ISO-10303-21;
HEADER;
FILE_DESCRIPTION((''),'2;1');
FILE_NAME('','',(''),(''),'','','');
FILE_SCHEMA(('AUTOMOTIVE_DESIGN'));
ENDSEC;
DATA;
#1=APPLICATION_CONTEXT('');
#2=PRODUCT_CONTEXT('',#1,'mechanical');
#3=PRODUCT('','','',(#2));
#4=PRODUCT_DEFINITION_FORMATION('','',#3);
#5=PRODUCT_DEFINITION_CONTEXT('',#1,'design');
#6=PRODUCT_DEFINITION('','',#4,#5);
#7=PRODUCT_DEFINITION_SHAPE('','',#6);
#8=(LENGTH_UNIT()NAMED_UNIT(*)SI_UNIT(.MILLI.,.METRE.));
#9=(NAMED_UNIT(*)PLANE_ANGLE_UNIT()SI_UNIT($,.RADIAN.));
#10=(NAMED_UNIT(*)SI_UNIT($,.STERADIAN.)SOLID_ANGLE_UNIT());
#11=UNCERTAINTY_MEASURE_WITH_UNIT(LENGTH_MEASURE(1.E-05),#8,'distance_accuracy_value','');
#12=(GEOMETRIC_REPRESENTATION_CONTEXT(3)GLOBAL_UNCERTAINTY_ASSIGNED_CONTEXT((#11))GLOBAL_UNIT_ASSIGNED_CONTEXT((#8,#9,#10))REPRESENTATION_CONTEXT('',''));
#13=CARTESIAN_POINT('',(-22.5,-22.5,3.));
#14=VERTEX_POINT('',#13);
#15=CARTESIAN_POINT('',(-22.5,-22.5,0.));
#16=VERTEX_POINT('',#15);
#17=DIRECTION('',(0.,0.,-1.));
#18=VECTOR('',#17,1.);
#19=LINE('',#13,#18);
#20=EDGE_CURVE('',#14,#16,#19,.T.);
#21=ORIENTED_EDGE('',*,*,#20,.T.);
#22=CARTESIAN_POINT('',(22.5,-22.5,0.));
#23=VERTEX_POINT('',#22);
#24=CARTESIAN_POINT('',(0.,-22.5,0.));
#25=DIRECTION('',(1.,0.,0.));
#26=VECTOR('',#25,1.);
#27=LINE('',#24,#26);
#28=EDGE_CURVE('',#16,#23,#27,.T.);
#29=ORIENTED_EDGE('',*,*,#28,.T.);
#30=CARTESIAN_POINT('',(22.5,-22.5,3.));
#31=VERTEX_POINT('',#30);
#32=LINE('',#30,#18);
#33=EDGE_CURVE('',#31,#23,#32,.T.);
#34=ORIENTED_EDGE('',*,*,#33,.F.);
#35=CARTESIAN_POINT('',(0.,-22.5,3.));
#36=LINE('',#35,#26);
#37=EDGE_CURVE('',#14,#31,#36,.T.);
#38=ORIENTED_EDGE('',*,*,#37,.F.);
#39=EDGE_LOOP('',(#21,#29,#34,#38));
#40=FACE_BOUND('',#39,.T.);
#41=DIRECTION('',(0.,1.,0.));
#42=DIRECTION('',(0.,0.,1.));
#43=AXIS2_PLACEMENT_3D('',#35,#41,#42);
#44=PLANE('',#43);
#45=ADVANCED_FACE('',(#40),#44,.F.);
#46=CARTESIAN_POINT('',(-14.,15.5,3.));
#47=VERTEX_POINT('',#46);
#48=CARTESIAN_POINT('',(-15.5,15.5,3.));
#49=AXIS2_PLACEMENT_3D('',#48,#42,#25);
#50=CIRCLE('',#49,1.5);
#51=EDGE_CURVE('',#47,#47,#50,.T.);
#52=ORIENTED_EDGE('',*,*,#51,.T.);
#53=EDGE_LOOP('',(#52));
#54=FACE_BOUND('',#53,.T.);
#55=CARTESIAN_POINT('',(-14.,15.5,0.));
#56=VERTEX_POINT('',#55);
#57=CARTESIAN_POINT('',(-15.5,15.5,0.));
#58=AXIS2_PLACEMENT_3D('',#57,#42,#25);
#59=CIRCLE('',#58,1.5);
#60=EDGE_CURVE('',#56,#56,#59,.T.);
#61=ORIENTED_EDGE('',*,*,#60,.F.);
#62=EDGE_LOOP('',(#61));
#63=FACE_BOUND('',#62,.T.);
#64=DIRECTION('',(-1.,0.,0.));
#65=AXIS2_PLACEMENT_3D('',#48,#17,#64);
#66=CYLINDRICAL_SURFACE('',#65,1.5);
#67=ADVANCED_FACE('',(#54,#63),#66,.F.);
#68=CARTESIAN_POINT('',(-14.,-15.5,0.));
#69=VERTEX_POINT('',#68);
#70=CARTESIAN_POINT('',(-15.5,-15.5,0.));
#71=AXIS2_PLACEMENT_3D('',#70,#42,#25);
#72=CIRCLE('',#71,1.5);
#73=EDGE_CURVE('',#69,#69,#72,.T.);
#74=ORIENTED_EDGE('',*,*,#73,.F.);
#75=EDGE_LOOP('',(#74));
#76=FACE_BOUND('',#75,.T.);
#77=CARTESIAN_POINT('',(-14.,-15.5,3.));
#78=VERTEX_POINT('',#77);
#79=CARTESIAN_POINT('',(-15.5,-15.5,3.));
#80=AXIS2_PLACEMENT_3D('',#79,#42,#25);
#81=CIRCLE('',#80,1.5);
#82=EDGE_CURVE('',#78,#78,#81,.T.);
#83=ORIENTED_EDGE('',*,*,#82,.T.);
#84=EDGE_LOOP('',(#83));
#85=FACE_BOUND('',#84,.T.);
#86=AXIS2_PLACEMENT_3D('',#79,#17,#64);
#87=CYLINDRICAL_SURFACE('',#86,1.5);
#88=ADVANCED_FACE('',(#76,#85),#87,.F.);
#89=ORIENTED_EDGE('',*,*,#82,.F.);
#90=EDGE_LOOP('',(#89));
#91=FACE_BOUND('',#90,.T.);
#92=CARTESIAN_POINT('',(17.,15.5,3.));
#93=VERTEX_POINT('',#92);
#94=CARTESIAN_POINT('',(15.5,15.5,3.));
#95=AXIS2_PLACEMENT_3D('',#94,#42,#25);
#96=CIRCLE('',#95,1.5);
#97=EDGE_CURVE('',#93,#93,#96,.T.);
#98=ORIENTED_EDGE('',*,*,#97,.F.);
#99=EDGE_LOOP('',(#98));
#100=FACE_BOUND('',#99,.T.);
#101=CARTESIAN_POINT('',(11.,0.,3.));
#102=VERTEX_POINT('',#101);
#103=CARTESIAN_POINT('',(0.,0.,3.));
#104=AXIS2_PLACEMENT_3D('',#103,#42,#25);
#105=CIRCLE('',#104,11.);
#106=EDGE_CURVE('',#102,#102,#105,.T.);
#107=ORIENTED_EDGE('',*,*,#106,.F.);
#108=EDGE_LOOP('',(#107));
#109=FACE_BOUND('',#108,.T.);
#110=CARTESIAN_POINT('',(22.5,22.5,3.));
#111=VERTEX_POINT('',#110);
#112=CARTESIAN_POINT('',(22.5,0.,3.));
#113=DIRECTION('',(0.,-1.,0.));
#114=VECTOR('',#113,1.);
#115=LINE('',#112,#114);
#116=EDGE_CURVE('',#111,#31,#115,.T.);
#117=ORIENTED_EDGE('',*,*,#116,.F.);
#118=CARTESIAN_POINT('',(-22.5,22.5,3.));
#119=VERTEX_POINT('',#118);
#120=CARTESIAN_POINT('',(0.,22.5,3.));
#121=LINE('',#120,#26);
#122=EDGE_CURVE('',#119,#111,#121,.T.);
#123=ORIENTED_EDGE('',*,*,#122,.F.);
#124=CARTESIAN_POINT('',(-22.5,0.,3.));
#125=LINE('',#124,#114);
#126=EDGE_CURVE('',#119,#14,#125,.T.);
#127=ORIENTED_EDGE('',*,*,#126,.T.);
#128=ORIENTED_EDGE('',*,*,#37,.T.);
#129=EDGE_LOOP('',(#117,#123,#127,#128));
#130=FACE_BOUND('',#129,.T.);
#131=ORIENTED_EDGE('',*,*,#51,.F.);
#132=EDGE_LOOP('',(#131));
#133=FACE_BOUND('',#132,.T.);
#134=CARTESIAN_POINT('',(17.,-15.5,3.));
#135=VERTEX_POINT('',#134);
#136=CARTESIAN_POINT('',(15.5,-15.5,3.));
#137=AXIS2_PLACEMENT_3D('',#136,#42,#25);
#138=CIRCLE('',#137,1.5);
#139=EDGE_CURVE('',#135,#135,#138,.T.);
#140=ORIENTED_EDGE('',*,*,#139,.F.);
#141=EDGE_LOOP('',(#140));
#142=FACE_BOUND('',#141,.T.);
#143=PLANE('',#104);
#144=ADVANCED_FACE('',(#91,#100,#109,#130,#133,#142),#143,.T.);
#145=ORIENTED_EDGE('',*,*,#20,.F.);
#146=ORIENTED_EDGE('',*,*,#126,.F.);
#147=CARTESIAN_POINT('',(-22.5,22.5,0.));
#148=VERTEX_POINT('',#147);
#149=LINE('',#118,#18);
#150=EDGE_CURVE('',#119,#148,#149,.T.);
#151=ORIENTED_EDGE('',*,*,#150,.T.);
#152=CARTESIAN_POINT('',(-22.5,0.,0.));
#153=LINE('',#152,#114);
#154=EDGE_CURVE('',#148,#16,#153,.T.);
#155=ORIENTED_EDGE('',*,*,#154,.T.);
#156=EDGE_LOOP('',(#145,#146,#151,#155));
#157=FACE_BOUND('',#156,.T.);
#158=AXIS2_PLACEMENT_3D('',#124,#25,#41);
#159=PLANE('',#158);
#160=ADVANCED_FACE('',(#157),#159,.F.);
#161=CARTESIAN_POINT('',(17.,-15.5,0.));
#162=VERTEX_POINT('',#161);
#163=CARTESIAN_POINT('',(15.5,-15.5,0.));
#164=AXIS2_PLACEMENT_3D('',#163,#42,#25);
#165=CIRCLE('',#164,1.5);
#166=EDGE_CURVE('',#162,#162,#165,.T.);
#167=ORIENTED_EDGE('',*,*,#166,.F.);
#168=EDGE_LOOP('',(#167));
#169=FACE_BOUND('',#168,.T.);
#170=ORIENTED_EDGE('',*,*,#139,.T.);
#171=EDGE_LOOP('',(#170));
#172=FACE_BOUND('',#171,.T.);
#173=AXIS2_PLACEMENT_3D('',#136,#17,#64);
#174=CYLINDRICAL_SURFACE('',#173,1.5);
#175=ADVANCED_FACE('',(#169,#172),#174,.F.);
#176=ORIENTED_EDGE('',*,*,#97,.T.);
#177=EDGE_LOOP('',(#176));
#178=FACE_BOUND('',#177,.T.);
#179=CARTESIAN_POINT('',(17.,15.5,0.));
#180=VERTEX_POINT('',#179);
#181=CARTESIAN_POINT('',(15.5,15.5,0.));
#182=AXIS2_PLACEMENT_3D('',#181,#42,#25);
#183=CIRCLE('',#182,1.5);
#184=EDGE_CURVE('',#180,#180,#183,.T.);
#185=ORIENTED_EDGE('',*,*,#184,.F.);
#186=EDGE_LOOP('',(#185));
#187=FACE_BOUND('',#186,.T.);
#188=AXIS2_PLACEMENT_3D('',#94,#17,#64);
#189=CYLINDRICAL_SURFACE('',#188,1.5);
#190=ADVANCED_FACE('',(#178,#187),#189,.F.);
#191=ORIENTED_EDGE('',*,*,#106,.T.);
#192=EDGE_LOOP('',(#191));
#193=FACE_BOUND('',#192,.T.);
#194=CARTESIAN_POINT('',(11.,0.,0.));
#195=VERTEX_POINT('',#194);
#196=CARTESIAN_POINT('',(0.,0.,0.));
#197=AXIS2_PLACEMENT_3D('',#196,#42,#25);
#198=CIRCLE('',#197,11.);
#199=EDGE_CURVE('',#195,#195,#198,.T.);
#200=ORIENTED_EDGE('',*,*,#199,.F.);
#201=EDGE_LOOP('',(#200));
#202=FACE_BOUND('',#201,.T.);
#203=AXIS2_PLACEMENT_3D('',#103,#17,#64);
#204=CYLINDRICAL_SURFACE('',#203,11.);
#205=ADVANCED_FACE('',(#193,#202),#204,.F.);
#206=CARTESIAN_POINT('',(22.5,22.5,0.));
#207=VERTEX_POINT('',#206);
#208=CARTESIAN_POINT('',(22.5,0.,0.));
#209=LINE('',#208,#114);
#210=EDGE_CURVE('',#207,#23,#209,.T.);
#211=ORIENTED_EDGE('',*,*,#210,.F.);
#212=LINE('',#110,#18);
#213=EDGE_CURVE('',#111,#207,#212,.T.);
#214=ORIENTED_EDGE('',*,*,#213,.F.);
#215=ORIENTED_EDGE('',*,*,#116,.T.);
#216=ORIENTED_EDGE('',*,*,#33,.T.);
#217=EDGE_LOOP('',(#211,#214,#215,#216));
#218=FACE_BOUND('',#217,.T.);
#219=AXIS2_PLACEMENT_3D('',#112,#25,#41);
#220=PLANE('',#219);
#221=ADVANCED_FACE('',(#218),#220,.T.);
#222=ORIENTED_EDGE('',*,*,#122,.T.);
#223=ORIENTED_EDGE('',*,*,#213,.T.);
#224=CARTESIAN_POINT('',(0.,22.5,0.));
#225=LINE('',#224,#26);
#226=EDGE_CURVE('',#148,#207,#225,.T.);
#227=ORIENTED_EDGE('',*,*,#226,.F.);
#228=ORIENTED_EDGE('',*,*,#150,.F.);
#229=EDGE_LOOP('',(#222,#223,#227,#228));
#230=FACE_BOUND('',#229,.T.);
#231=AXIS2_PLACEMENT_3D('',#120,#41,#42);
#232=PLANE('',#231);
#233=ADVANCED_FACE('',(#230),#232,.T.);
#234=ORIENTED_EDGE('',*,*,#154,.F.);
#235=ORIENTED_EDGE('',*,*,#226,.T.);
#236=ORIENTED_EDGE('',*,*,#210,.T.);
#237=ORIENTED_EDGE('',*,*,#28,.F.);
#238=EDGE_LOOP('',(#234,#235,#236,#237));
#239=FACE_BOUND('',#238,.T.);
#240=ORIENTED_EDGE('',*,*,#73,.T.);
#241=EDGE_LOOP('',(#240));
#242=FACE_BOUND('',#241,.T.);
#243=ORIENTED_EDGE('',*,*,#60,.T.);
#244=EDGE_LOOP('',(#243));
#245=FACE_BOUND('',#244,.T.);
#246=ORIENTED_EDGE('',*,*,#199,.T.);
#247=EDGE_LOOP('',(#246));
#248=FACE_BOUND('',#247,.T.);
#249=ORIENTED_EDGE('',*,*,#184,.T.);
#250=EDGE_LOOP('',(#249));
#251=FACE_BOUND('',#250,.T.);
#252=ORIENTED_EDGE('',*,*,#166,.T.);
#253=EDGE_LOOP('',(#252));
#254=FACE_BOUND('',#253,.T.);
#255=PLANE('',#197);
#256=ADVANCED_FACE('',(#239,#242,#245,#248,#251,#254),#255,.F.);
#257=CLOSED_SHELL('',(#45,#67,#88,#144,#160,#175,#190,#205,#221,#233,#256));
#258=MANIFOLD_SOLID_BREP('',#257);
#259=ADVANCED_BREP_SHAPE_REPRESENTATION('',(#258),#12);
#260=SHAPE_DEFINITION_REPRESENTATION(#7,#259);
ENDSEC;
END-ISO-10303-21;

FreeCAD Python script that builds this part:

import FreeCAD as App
import Part
import Sketcher
Q = App.Units.Quantity


def add_polygon(sketch, points):
    """Adds a closed chain of lines whose ends are joined by coincident constraints."""
    first, n = sketch.GeometryCount, len(points)
    for a, b in zip(points, points[1:] + points[:1]):
        sketch.addGeometry(Part.LineSegment(App.Vector(*a, 0), App.Vector(*b, 0)), False)
    for i in range(n):
        sketch.addConstraint(Sketcher.Constraint("Coincident", first + i, 2, first + (i + 1) % n, 1))

doc = App.newDocument("Part")
params = doc.addObject("Spreadsheet::Sheet", "Params")
for row, (alias, value) in enumerate([
    ("sketch1_diameter", "3 mm"),
    ("sketch1_diameter2", "22 mm"),
    ("sketch1_width", "45 mm"),
    ("pad1_length", "3 mm"),
], start=1):
    params.set(f"A{row}", alias)
    params.set(f"B{row}", "=" + value)
    params.setAlias(f"B{row}", alias)

body = doc.addObject("PartDesign::Body", "Body")

# Sketch on XY plane
sketch1 = body.newObject("Sketcher::SketchObject", "Sketch")
sketch1.AttachmentSupport = (doc.getObject("XY_Plane"), [""])
sketch1.MapMode = "FlatFace"
add_polygon(sketch1, [(-22.5, 22.5), (-22.5, -22.5), (22.5, -22.5), (22.5, 22.5)])  # lines 0-3
sketch1.addGeometry(Part.Circle(App.Vector(-15.5, -15.5, 0), App.Vector(0, 0, 1), 1.5), False)  # 4
sketch1.addGeometry(Part.Circle(App.Vector(15.5, -15.5, 0), App.Vector(0, 0, 1), 1.5), False)  # 5
sketch1.addGeometry(Part.Circle(App.Vector(-15.5, 15.5, 0), App.Vector(0, 0, 1), 1.5), False)  # 6
sketch1.addGeometry(Part.Circle(App.Vector(0, 0, 0), App.Vector(0, 0, 1), 11), False)  # 7
sketch1.addGeometry(Part.Circle(App.Vector(15.5, 15.5, 0), App.Vector(0, 0, 1), 1.5), False)  # 8
sketch1.addConstraint(Sketcher.Constraint("Vertical", 0))
sketch1.addConstraint(Sketcher.Constraint("Horizontal", 1))
sketch1.addConstraint(Sketcher.Constraint("Vertical", 2))
sketch1.addConstraint(Sketcher.Constraint("Horizontal", 3))
sketch1.addConstraint(Sketcher.Constraint("Coincident", 7, 3, -1, 1))
sketch1.addConstraint(Sketcher.Constraint("Equal", 4, 5))
sketch1.addConstraint(Sketcher.Constraint("Equal", 5, 6))
sketch1.addConstraint(Sketcher.Constraint("Equal", 6, 8))
sketch1.addConstraint(Sketcher.Constraint("Symmetric", 5, 3, 6, 3, -1, 1))
sketch1.addConstraint(Sketcher.Constraint("Symmetric", 4, 3, 8, 3, -1, 1))
sketch1.addConstraint(Sketcher.Constraint("Symmetric", 0, 2, 2, 2, -1, 1))
sketch1.addConstraint(Sketcher.Constraint("Symmetric", 4, 3, 5, 3, -2))
sketch1.addConstraint(Sketcher.Constraint("Equal", 3, 0))
sketch1.addConstraint(Sketcher.Constraint("Diameter", 4, Q("3 mm")))
sketch1.addConstraint(Sketcher.Constraint("Diameter", 7, Q("22 mm")))
sketch1.addConstraint(Sketcher.Constraint("DistanceX", 1, 1, 1, 2, Q("45 mm")))
sketch1.addConstraint(Sketcher.Constraint("DistanceX", 4, 3, 5, 3, Q("31 mm")))
sketch1.addConstraint(Sketcher.Constraint("DistanceY", 4, 3, 6, 3, Q("31 mm")))
sketch1.setExpression("Constraints[17]", "Params.sketch1_diameter")
sketch1.setExpression("Constraints[18]", "Params.sketch1_diameter2")
sketch1.setExpression("Constraints[19]", "Params.sketch1_width")
pad1 = body.newObject("PartDesign::Pad", "Pad")
pad1.Profile = sketch1
pad1.setExpression("Length", "Params.pad1_length")

doc.recompute()
